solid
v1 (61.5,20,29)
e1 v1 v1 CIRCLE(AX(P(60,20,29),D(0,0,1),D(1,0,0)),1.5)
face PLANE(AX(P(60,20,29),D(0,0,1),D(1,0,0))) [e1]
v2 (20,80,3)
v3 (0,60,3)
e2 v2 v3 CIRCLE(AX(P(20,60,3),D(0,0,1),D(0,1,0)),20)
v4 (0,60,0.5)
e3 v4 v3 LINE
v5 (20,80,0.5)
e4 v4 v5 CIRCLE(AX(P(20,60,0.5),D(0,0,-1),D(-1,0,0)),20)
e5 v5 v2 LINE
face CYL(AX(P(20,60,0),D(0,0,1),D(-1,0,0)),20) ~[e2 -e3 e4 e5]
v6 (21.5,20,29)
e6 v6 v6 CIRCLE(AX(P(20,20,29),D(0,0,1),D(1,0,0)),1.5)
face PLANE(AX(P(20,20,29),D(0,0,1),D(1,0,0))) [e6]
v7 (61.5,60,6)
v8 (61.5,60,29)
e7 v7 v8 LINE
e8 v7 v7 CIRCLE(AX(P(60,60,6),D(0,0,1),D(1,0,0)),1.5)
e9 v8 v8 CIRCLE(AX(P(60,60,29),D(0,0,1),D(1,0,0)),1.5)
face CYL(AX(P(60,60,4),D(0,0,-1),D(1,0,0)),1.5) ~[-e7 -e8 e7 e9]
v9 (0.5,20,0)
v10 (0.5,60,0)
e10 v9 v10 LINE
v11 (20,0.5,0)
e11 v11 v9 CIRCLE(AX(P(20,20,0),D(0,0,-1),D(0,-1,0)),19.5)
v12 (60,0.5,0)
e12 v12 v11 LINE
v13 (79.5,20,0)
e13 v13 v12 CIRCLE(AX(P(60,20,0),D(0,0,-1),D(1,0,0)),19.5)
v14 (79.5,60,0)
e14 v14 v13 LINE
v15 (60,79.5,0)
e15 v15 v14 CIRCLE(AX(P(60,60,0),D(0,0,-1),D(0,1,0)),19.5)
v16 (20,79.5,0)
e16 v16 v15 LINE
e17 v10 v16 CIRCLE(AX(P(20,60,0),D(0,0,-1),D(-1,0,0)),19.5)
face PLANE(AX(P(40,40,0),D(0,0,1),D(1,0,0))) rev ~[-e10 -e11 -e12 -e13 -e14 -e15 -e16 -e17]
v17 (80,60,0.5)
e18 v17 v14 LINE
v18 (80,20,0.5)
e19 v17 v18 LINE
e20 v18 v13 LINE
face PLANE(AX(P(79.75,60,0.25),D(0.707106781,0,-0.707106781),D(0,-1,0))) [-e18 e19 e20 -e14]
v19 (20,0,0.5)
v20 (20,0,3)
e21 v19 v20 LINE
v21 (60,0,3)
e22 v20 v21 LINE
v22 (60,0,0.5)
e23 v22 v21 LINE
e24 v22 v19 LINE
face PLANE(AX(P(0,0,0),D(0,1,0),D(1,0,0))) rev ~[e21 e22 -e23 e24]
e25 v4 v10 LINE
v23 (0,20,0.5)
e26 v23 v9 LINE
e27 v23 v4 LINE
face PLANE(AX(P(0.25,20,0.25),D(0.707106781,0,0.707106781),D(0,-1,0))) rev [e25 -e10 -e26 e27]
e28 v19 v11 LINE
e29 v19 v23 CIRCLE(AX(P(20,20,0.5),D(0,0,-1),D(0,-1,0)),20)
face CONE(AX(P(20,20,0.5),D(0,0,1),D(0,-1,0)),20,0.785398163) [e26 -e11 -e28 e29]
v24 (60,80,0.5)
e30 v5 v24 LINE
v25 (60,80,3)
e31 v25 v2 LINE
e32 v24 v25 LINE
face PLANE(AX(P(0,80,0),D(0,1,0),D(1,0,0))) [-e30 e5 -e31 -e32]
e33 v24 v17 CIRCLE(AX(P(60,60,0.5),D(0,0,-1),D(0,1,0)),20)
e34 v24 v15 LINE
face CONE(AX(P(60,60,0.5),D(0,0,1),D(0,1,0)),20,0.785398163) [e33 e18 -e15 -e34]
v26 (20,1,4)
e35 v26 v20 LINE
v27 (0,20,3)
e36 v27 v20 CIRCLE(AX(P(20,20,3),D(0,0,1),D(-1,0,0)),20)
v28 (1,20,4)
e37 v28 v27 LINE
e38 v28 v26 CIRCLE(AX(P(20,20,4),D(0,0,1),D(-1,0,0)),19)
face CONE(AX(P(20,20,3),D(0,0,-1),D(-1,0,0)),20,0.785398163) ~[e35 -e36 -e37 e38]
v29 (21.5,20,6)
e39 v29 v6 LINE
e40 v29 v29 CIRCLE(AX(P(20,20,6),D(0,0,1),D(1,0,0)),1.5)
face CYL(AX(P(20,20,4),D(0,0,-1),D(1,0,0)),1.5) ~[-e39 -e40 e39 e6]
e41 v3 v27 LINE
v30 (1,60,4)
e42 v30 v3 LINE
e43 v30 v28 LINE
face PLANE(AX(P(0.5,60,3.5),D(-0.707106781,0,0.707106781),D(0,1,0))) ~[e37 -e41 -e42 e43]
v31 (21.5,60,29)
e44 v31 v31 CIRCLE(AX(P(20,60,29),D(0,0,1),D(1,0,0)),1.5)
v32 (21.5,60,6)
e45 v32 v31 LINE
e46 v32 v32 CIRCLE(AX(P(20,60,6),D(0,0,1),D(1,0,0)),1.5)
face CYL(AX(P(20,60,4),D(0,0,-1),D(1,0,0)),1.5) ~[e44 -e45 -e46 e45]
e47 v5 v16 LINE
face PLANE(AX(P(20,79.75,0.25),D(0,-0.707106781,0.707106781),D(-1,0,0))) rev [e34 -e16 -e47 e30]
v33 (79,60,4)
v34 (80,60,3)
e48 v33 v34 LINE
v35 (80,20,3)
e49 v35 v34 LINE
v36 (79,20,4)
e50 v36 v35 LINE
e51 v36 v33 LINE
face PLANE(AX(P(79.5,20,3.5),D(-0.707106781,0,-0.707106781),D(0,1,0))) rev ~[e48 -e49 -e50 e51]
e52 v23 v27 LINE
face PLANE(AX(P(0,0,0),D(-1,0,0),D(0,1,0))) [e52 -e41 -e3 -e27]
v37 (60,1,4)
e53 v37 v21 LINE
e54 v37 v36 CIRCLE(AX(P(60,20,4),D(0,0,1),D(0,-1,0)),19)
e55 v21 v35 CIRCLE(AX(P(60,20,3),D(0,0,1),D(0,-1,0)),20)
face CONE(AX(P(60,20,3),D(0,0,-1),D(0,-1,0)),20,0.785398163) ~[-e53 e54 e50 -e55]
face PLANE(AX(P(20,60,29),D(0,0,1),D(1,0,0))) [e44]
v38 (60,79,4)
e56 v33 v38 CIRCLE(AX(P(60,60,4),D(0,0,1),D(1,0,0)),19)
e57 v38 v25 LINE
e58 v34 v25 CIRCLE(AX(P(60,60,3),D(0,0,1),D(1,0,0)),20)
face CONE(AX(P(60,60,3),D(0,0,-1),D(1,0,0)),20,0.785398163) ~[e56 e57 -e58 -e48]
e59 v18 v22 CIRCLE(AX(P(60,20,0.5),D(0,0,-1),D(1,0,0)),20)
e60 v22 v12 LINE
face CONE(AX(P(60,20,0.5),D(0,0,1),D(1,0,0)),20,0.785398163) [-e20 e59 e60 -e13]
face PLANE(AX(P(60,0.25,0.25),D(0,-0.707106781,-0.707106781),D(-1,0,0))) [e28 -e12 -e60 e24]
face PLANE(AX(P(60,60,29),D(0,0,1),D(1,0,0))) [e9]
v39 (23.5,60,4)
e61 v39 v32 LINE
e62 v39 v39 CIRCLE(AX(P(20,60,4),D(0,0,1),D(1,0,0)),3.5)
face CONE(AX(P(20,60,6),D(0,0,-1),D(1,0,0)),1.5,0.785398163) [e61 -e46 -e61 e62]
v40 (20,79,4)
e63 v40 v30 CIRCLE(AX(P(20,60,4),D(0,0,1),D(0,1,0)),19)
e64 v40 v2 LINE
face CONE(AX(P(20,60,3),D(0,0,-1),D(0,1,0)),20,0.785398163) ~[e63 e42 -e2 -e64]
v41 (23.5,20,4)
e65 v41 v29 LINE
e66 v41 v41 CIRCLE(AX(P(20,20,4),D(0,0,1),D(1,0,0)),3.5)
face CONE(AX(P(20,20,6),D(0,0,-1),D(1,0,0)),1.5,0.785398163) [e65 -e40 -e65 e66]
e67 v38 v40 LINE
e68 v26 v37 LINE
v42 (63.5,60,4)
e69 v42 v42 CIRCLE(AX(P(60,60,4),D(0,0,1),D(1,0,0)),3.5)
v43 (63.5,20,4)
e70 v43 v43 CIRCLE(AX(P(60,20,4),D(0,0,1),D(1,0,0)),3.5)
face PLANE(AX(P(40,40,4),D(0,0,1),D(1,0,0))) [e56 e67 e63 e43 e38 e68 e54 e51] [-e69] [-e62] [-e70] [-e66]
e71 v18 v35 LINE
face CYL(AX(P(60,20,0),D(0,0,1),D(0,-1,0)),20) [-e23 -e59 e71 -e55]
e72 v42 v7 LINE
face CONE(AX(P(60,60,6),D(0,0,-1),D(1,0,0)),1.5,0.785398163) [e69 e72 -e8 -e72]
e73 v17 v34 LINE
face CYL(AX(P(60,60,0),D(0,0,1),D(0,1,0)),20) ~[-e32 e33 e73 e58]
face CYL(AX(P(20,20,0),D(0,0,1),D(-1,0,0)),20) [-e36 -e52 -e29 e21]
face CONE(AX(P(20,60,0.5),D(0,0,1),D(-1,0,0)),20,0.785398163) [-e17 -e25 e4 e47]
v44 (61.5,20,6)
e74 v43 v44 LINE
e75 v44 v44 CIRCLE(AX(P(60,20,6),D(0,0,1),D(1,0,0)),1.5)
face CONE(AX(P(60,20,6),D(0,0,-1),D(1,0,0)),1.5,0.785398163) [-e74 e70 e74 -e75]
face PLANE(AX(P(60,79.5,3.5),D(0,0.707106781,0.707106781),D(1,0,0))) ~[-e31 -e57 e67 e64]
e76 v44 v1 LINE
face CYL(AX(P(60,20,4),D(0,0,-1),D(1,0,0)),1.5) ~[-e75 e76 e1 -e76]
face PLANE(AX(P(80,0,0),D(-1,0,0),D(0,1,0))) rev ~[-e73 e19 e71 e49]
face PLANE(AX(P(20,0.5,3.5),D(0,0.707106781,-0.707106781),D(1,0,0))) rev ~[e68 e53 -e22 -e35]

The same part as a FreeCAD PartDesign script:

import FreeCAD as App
import Part
import Sketcher

V = App.Vector


def edges_at(feature, points):
    """Names of the edges that pass closest to the given points."""
    edges = feature.Shape.Edges
    near = lambda p: min(range(len(edges)), key=lambda i: edges[i].distToShape(Part.Vertex(*p))[0])
    return sorted({f"Edge{near(p) + 1}" for p in points})

doc = App.newDocument("Part")
body = doc.addObject("PartDesign::Body", "Body")

# Sketch on XY plane
sketch1 = body.newObject("Sketcher::SketchObject", "Sketch")
sketch1.AttachmentSupport = (doc.getObject("XY_Plane"), [""])
sketch1.MapMode = "FlatFace"
sketch1.addGeometry([
    Part.LineSegment(V(0, 80, 0), V(0, 0, 0)),
    Part.LineSegment(V(0, 0, 0), V(80, 0, 0)),
    Part.LineSegment(V(80, 0, 0), V(80, 80, 0)),
    Part.LineSegment(V(80, 80, 0), V(0, 80, 0)),
], False)
sketch1.addConstraint([
    Sketcher.Constraint("Coincident", 0, 2, 1, 1),
    Sketcher.Constraint("Coincident", 1, 2, 2, 1),
    Sketcher.Constraint("Coincident", 2, 2, 3, 1),
    Sketcher.Constraint("Coincident", 3, 2, 0, 1),
    Sketcher.Constraint("Vertical", 0),
    Sketcher.Constraint("Horizontal", 1),
    Sketcher.Constraint("Vertical", 2),
    Sketcher.Constraint("Horizontal", 3),
    Sketcher.Constraint("Coincident", 0, 2, -1, 1),
    Sketcher.Constraint("Equal", 3, 0),
    Sketcher.Constraint("DistanceX", 1, 1, 1, 2, 80.0),
])
pad1 = body.newObject("PartDesign::Pad", "Pad")
pad1.Profile = sketch1
pad1.Length = 4

# Sketch on XY plane
sketch2 = body.newObject("Sketcher::SketchObject", "Sketch001")
sketch2.AttachmentSupport = (doc.getObject("XY_Plane"), [""])
sketch2.MapMode = "FlatFace"
sketch2.AttachmentOffset = App.Placement(V(0, 0, 4), App.Rotation())
sketch2.addGeometry([
    Part.Circle(V(60, 60, 0), V(0, 0, 1), 1.5),
    Part.Circle(V(20, 60, 0), V(0, 0, 1), 1.5),
    Part.Circle(V(20, 20, 0), V(0, 0, 1), 1.5),
    Part.Circle(V(60, 20, 0), V(0, 0, 1), 1.5),
], False)
sketch2.addConstraint([
    Sketcher.Constraint("Equal", 0, 1),
    Sketcher.Constraint("Equal", 1, 2),
    Sketcher.Constraint("Equal", 2, 3),
    Sketcher.Constraint("Horizontal", 0, 3, 1, 3),
    Sketcher.Constraint("Horizontal", 2, 3, 3, 3),
    Sketcher.Constraint("Vertical", 1, 3, 2, 3),
    Sketcher.Constraint("Vertical", 0, 3, 3, 3),
    Sketcher.Constraint("Diameter", 0, 3.0),
    Sketcher.Constraint("DistanceX", -1, 1, 0, 3, 60.0),
    Sketcher.Constraint("DistanceY", -1, 1, 0, 3, 60.0),
    Sketcher.Constraint("DistanceX", -1, 1, 1, 3, 20.0),
    Sketcher.Constraint("DistanceY", -1, 1, 2, 3, 20.0),
])
pad2 = body.newObject("PartDesign::Pad", "Pad001")
pad2.Profile = sketch2
pad2.Length = 25
doc.recompute()

fillet = body.newObject("PartDesign::Fillet", "Fillet")
fillet.Base = (pad2, edges_at(pad2, [
    (80, 0, 2),
    (80, 80, 2),
    (0, 0, 2),
    (0, 80, 2),
]))
fillet.Radius = 20
doc.recompute()

chamfer = body.newObject("PartDesign::Chamfer", "Chamfer")
chamfer.Base = (fillet, edges_at(fillet, [
    (58.5, 20, 4),
    (18.5, 20, 4),
    (18.5, 60, 4),
    (58.5, 60, 4),
]))
chamfer.Size = 2
doc.recompute()

chamfer2 = body.newObject("PartDesign::Chamfer", "Chamfer001")
chamfer2.Base = (chamfer, edges_at(chamfer, [
    (40, 80, 0),
    (5.858, 74.142, 0),
    (74.142, 74.142, 0),
    (0, 40, 0),
    (80, 40, 0),
    (5.858, 5.858, 0),
    (74.142, 5.858, 0),
    (40, 0, 0),
]))
chamfer2.Size = 0.5
doc.recompute()

chamfer3 = body.newObject("PartDesign::Chamfer", "Chamfer002")
chamfer3.Base = (chamfer2, edges_at(chamfer2, [
    (74.142, 5.858, 4),
    (80, 40, 4),
    (74.142, 74.142, 4),
    (40, 80, 4),
    (5.858, 74.142, 4),
    (0, 40, 4),
    (5.858, 5.858, 4),
    (40, 0, 4),
]))
chamfer3.Size = 1

doc.recompute()
